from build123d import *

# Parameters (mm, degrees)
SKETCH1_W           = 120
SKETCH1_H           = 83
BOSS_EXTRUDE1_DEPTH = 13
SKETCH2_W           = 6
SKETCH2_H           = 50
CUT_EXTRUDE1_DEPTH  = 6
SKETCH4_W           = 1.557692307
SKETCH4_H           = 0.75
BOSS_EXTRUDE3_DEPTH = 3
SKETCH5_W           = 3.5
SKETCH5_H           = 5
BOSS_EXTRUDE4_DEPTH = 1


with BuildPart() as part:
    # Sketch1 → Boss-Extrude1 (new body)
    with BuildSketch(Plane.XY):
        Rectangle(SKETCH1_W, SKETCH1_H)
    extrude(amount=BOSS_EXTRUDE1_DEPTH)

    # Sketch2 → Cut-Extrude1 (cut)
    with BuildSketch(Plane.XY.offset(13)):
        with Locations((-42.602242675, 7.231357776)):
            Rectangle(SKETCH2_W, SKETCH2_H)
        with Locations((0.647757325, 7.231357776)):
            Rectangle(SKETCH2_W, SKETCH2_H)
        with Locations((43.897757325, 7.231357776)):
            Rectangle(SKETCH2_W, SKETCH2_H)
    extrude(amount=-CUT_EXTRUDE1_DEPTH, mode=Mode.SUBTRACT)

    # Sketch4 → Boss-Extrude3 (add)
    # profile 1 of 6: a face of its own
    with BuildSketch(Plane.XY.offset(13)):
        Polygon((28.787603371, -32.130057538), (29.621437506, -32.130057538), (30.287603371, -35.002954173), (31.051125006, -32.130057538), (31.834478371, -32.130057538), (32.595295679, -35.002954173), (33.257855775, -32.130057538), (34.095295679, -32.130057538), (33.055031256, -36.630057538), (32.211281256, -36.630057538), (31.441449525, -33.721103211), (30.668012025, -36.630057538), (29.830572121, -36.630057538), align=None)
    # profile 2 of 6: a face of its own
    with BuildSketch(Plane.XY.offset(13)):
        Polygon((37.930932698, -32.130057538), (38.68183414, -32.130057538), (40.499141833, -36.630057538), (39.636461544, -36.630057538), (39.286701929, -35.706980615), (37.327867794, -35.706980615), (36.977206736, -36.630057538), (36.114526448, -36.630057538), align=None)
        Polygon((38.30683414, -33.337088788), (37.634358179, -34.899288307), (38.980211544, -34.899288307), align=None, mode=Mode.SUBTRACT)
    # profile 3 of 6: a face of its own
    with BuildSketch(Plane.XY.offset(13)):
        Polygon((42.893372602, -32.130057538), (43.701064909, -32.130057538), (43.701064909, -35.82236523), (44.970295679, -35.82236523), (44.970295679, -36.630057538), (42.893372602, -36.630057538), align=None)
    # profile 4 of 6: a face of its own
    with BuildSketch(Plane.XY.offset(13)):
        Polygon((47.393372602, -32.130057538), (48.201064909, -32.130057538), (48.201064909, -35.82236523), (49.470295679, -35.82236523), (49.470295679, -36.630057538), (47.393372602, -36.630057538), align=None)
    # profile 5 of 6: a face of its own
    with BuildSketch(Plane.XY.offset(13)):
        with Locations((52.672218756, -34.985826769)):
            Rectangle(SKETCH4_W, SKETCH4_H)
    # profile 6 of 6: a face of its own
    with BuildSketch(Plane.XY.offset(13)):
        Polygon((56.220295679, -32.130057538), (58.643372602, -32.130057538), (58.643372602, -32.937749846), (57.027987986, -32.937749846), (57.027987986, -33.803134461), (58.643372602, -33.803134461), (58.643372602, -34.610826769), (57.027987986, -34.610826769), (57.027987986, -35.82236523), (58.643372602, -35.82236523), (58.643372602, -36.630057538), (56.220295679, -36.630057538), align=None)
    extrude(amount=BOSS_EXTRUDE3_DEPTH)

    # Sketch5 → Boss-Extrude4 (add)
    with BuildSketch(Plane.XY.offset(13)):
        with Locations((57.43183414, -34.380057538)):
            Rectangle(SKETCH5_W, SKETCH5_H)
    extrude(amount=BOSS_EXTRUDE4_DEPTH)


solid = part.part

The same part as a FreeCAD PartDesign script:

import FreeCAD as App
import Part
import Sketcher

V = App.Vector
Q = App.Units.Quantity

doc = App.newDocument("Part")
body = doc.addObject("PartDesign::Body", "Body")

sketch1 = body.newObject("Sketcher::SketchObject", "Sketch")
sketch1.AttachmentSupport = (doc.getObject("XY_Plane"), [""])
sketch1.MapMode = "FlatFace"
sketch1.addGeometry(Part.LineSegment(V(-60, 42, 0), V(-60, -42, 0)), False)
sketch1.addGeometry(Part.LineSegment(V(-60, -42, 0), V(60, -42, 0)), False)
sketch1.addGeometry(Part.LineSegment(V(60, -42, 0), V(60, 42, 0)), False)
sketch1.addGeometry(Part.LineSegment(V(60, 42, 0), V(-60, 42, 0)), False)
sketch1.addConstraint(Sketcher.Constraint("Coincident", 0, 2, 1, 1))
sketch1.addConstraint(Sketcher.Constraint("Coincident", 1, 2, 2, 1))
sketch1.addConstraint(Sketcher.Constraint("Coincident", 2, 2, 3, 1))
sketch1.addConstraint(Sketcher.Constraint("Coincident", 3, 2, 0, 1))
sketch1.addConstraint(Sketcher.Constraint("Vertical", 0))
sketch1.addConstraint(Sketcher.Constraint("Horizontal", 1))
sketch1.addConstraint(Sketcher.Constraint("Vertical", 2))
sketch1.addConstraint(Sketcher.Constraint("Horizontal", 3))
sketch1.addConstraint(Sketcher.Constraint("Symmetric", 0, 2, 2, 2, -1, 1))
sketch1.addConstraint(Sketcher.Constraint("DistanceX", 1, 1, 1, 2, Q("120 mm")))
sketch1.addConstraint(Sketcher.Constraint("DistanceY", 0, 2, 0, 1, Q("83 mm")))
pad1 = body.newObject("PartDesign::Pad", "Pad")
pad1.Profile = sketch1
pad1.Length = 13

sketch2 = body.newObject("Sketcher::SketchObject", "Sketch001")
sketch2.AttachmentSupport = (doc.getObject("XY_Plane"), [""])
sketch2.MapMode = "FlatFace"
sketch2.AttachmentOffset = App.Placement(V(0, 0, 13), App.Rotation())
sketch2.addGeometry(Part.LineSegment(V(-46, 32, 0), V(-46, -18, 0)), False)
sketch2.addGeometry(Part.LineSegment(V(-46, -18, 0), V(-40, -18, 0)), False)
sketch2.addGeometry(Part.LineSegment(V(-40, -18, 0), V(-40, 32, 0)), False)
sketch2.addGeometry(Part.LineSegment(V(-40, 32, 0), V(-46, 32, 0)), False)
sketch2.addGeometry(Part.LineSegment(V(-2, 32, 0), V(-2, -18, 0)), False)
sketch2.addGeometry(Part.LineSegment(V(-2, -18, 0), V(4, -18, 0)), False)
sketch2.addGeometry(Part.LineSegment(V(4, -18, 0), V(4, 32, 0)), False)
sketch2.addGeometry(Part.LineSegment(V(4, 32, 0), V(-2, 32, 0)), False)
sketch2.addGeometry(Part.LineSegment(V(41, 32, 0), V(41, -18, 0)), False)
sketch2.addGeometry(Part.LineSegment(V(41, -18, 0), V(47, -18, 0)), False)
sketch2.addGeometry(Part.LineSegment(V(47, -18, 0), V(47, 32, 0)), False)
sketch2.addGeometry(Part.LineSegment(V(47, 32, 0), V(41, 32, 0)), False)
sketch2.addConstraint(Sketcher.Constraint("Coincident", 0, 2, 1, 1))
sketch2.addConstraint(Sketcher.Constraint("Coincident", 1, 2, 2, 1))
sketch2.addConstraint(Sketcher.Constraint("Coincident", 2, 2, 3, 1))
sketch2.addConstraint(Sketcher.Constraint("Coincident", 3, 2, 0, 1))
sketch2.addConstraint(Sketcher.Constraint("Coincident", 4, 2, 5, 1))
sketch2.addConstraint(Sketcher.Constraint("Coincident", 5, 2, 6, 1))
sketch2.addConstraint(Sketcher.Constraint("Coincident", 6, 2, 7, 1))
sketch2.addConstraint(Sketcher.Constraint("Coincident", 7, 2, 4, 1))
sketch2.addConstraint(Sketcher.Constraint("Coincident", 8, 2, 9, 1))
sketch2.addConstraint(Sketcher.Constraint("Coincident", 9, 2, 10, 1))
sketch2.addConstraint(Sketcher.Constraint("Coincident", 10, 2, 11, 1))
sketch2.addConstraint(Sketcher.Constraint("Coincident", 11, 2, 8, 1))
sketch2.addConstraint(Sketcher.Constraint("Vertical", 0))
sketch2.addConstraint(Sketcher.Constraint("Horizontal", 1))
sketch2.addConstraint(Sketcher.Constraint("Vertical", 2))
sketch2.addConstraint(Sketcher.Constraint("Horizontal", 3))
sketch2.addConstraint(Sketcher.Constraint("Vertical", 4))
sketch2.addConstraint(Sketcher.Constraint("Horizontal", 5))
sketch2.addConstraint(Sketcher.Constraint("Vertical", 6))
sketch2.addConstraint(Sketcher.Constraint("Horizontal", 7))
sketch2.addConstraint(Sketcher.Constraint("Vertical", 8))
sketch2.addConstraint(Sketcher.Constraint("Horizontal", 9))
sketch2.addConstraint(Sketcher.Constraint("Vertical", 10))
sketch2.addConstraint(Sketcher.Constraint("Horizontal", 11))
sketch2.addConstraint(Sketcher.Constraint("Horizontal", 1, 2, 4, 2))
sketch2.addConstraint(Sketcher.Constraint("Horizontal", 3, 2, 6, 2))
sketch2.addConstraint(Sketcher.Constraint("Horizontal", 5, 2, 8, 2))
sketch2.addConstraint(Sketcher.Constraint("Horizontal", 7, 2, 10, 2))
sketch2.addConstraint(Sketcher.Constraint("Equal", 3, 5))
sketch2.addConstraint(Sketcher.Constraint("Equal", 7, 9))
sketch2.addConstraint(Sketcher.Constraint("DistanceX", 1, 1, 1, 2, Q("6 mm")))
sketch2.addConstraint(Sketcher.Constraint("DistanceY", 0, 2, 0, 1, Q("50 mm")))
sketch2.addConstraint(Sketcher.Constraint("DistanceX", 1, 2, 8, 2, Q("80.5 mm")))
sketch2.addConstraint(Sketcher.Constraint("DistanceX", 1, 2, 4, 2, Q("37.25 mm")))
sketch2.addConstraint(Sketcher.Constraint("DistanceX", 0, 2, -1, 1, Q("45.602243 mm")))
sketch2.addConstraint(Sketcher.Constraint("DistanceY", 0, 2, -1, 1, Q("17.768642 mm")))
pocket1 = body.newObject("PartDesign::Pocket", "Pocket")
pocket1.Profile = sketch2
pocket1.Length = 6

sketch3 = body.newObject("Sketcher::SketchObject", "Sketch002")
sketch3.AttachmentSupport = (doc.getObject("XY_Plane"), [""])
sketch3.MapMode = "FlatFace"
sketch3.AttachmentOffset = App.Placement(V(0, 0, 13), App.Rotation())
sketch3.addGeometry(Part.LineSegment(V(29.6, -32.1, 0), V(28.8, -32.1, 0)), False)
sketch3.addGeometry(Part.LineSegment(V(28.8, -32.1, 0), V(29.8, -36.6, 0)), False)
sketch3.addGeometry(Part.LineSegment(V(29.8, -36.6, 0), V(30.7, -36.6, 0)), False)
sketch3.addGeometry(Part.LineSegment(V(30.7, -36.6, 0), V(31.4, -33.7, 0)), False)
sketch3.addGeometry(Part.LineSegment(V(31.4, -33.7, 0), V(32.2, -36.6, 0)), False)
sketch3.addGeometry(Part.LineSegment(V(32.2, -36.6, 0), V(33.1, -36.6, 0)), False)
sketch3.addGeometry(Part.LineSegment(V(33.1, -36.6, 0), V(34.1, -32.1, 0)), False)
sketch3.addGeometry(Part.LineSegment(V(34.1, -32.1, 0), V(33.3, -32.1, 0)), False)
sketch3.addGeometry(Part.LineSegment(V(33.3, -32.1, 0), V(32.6, -35, 0)), False)
sketch3.addGeometry(Part.LineSegment(V(32.6, -35, 0), V(31.8, -32.1, 0)), False)
sketch3.addGeometry(Part.LineSegment(V(31.8, -32.1, 0), V(31.1, -32.1, 0)), False)
sketch3.addGeometry(Part.LineSegment(V(31.1, -32.1, 0), V(30.3, -35, 0)), False)
sketch3.addGeometry(Part.LineSegment(V(30.3, -35, 0), V(29.6, -32.1, 0)), False)
sketch3.addGeometry(Part.LineSegment(V(38.7, -32.1, 0), V(37.9, -32.1, 0)), False)
sketch3.addGeometry(Part.LineSegment(V(37.9, -32.1, 0), V(36.1, -36.6, 0)), False)
sketch3.addGeometry(Part.LineSegment(V(36.1, -36.6, 0), V(37, -36.6, 0)), False)
sketch3.addGeometry(Part.LineSegment(V(37, -36.6, 0), V(37.3, -35.7, 0)), False)
sketch3.addGeometry(Part.LineSegment(V(37.3, -35.7, 0), V(39.3, -35.7, 0)), False)
sketch3.addGeometry(Part.LineSegment(V(39.3, -35.7, 0), V(39.6, -36.6, 0)), False)
sketch3.addGeometry(Part.LineSegment(V(39.6, -36.6, 0), V(40.5, -36.6, 0)), False)
sketch3.addGeometry(Part.LineSegment(V(40.5, -36.6, 0), V(38.7, -32.1, 0)), False)
sketch3.addGeometry(Part.LineSegment(V(38.3, -33.3, 0), V(39, -34.9, 0)), False)
sketch3.addGeometry(Part.LineSegment(V(39, -34.9, 0), V(37.6, -34.9, 0)), False)
sketch3.addGeometry(Part.LineSegment(V(37.6, -34.9, 0), V(38.3, -33.3, 0)), False)
sketch3.addGeometry(Part.LineSegment(V(43.7, -32.1, 0), V(42.9, -32.1, 0)), False)
sketch3.addGeometry(Part.LineSegment(V(42.9, -32.1, 0), V(42.9, -36.6, 0)), False)
sketch3.addGeometry(Part.LineSegment(V(42.9, -36.6, 0), V(45, -36.6, 0)), False)
sketch3.addGeometry(Part.LineSegment(V(45, -36.6, 0), V(45, -35.8, 0)), False)
sketch3.addGeometry(Part.LineSegment(V(45, -35.8, 0), V(43.7, -35.8, 0)), False)
sketch3.addGeometry(Part.LineSegment(V(43.7, -35.8, 0), V(43.7, -32.1, 0)), False)
sketch3.addGeometry(Part.LineSegment(V(48.2, -32.1, 0), V(47.4, -32.1, 0)), False)
sketch3.addGeometry(Part.LineSegment(V(47.4, -32.1, 0), V(47.4, -36.6, 0)), False)
sketch3.addGeometry(Part.LineSegment(V(47.4, -36.6, 0), V(49.5, -36.6, 0)), False)
sketch3.addGeometry(Part.LineSegment(V(49.5, -36.6, 0), V(49.5, -35.8, 0)), False)
sketch3.addGeometry(Part.LineSegment(V(49.5, -35.8, 0), V(48.2, -35.8, 0)), False)
sketch3.addGeometry(Part.LineSegment(V(48.2, -35.8, 0), V(48.2, -32.1, 0)), False)
sketch3.addGeometry(Part.LineSegment(V(51.9, -34.6, 0), V(51.9, -35.4, 0)), False)
sketch3.addGeometry(Part.LineSegment(V(51.9, -35.4, 0), V(53.5, -35.4, 0)), False)
sketch3.addGeometry(Part.LineSegment(V(53.5, -35.4, 0), V(53.5, -34.6, 0)), False)
sketch3.addGeometry(Part.LineSegment(V(53.5, -34.6, 0), V(51.9, -34.6, 0)), False)
sketch3.addGeometry(Part.LineSegment(V(58.6, -32.1, 0), V(56.2, -32.1, 0)), False)
sketch3.addGeometry(Part.LineSegment(V(56.2, -32.1, 0), V(56.2, -36.6, 0)), False)
sketch3.addGeometry(Part.LineSegment(V(56.2, -36.6, 0), V(58.6, -36.6, 0)), False)
sketch3.addGeometry(Part.LineSegment(V(58.6, -36.6, 0), V(58.6, -35.8, 0)), False)
sketch3.addGeometry(Part.LineSegment(V(58.6, -35.8, 0), V(57, -35.8, 0)), False)
sketch3.addGeometry(Part.LineSegment(V(57, -35.8, 0), V(57, -34.6, 0)), False)
sketch3.addGeometry(Part.LineSegment(V(57, -34.6, 0), V(58.6, -34.6, 0)), False)
sketch3.addGeometry(Part.LineSegment(V(58.6, -34.6, 0), V(58.6, -33.8, 0)), False)
sketch3.addGeometry(Part.LineSegment(V(58.6, -33.8, 0), V(57, -33.8, 0)), False)
sketch3.addGeometry(Part.LineSegment(V(57, -33.8, 0), V(57, -32.9, 0)), False)
sketch3.addGeometry(Part.LineSegment(V(57, -32.9, 0), V(58.6, -32.9, 0)), False)
sketch3.addGeometry(Part.LineSegment(V(58.6, -32.9, 0), V(58.6, -32.1, 0)), False)
sketch3.addConstraint(Sketcher.Constraint("Coincident", 0, 2, 1, 1))
sketch3.addConstraint(Sketcher.Constraint("Coincident", 1, 2, 2, 1))
sketch3.addConstraint(Sketcher.Constraint("Coincident", 2, 2, 3, 1))
sketch3.addConstraint(Sketcher.Constraint("Coincident", 3, 2, 4, 1))
sketch3.addConstraint(Sketcher.Constraint("Coincident", 4, 2, 5, 1))
sketch3.addConstraint(Sketcher.Constraint("Coincident", 5, 2, 6, 1))
sketch3.addConstraint(Sketcher.Constraint("Coincident", 6, 2, 7, 1))
sketch3.addConstraint(Sketcher.Constraint("Coincident", 7, 2, 8, 1))
sketch3.addConstraint(Sketcher.Constraint("Coincident", 8, 2, 9, 1))
sketch3.addConstraint(Sketcher.Constraint("Coincident", 9, 2, 10, 1))
sketch3.addConstraint(Sketcher.Constraint("Coincident", 10, 2, 11, 1))
sketch3.addConstraint(Sketcher.Constraint("Coincident", 11, 2, 12, 1))
sketch3.addConstraint(Sketcher.Constraint("Coincident", 12, 2, 0, 1))
sketch3.addConstraint(Sketcher.Constraint("Coincident", 13, 2, 14, 1))
sketch3.addConstraint(Sketcher.Constraint("Coincident", 14, 2, 15, 1))
sketch3.addConstraint(Sketcher.Constraint("Coincident", 15, 2, 16, 1))
sketch3.addConstraint(Sketcher.Constraint("Coincident", 16, 2, 17, 1))
sketch3.addConstraint(Sketcher.Constraint("Coincident", 17, 2, 18, 1))
sketch3.addConstraint(Sketcher.Constraint("Coincident", 18, 2, 19, 1))
sketch3.addConstraint(Sketcher.Constraint("Coincident", 19, 2, 20, 1))
sketch3.addConstraint(Sketcher.Constraint("Coincident", 20, 2, 13, 1))
sketch3.addConstraint(Sketcher.Constraint("Coincident", 21, 2, 22, 1))
sketch3.addConstraint(Sketcher.Constraint("Coincident", 22, 2, 23, 1))
sketch3.addConstraint(Sketcher.Constraint("Coincident", 23, 2, 21, 1))
sketch3.addConstraint(Sketcher.Constraint("Coincident", 24, 2, 25, 1))
sketch3.addConstraint(Sketcher.Constraint("Coincident", 25, 2, 26, 1))
sketch3.addConstraint(Sketcher.Constraint("Coincident", 26, 2, 27, 1))
sketch3.addConstraint(Sketcher.Constraint("Coincident", 27, 2, 28, 1))
sketch3.addConstraint(Sketcher.Constraint("Coincident", 28, 2, 29, 1))
sketch3.addConstraint(Sketcher.Constraint("Coincident", 29, 2, 24, 1))
sketch3.addConstraint(Sketcher.Constraint("Coincident", 30, 2, 31, 1))
sketch3.addConstraint(Sketcher.Constraint("Coincident", 31, 2, 32, 1))
sketch3.addConstraint(Sketcher.Constraint("Coincident", 32, 2, 33, 1))
sketch3.addConstraint(Sketcher.Constraint("Coincident", 33, 2, 34, 1))
sketch3.addConstraint(Sketcher.Constraint("Coincident", 34, 2, 35, 1))
sketch3.addConstraint(Sketcher.Constraint("Coincident", 35, 2, 30, 1))
sketch3.addConstraint(Sketcher.Constraint("Coincident", 36, 2, 37, 1))
sketch3.addConstraint(Sketcher.Constraint("Coincident", 37, 2, 38, 1))
sketch3.addConstraint(Sketcher.Constraint("Coincident", 38, 2, 39, 1))
sketch3.addConstraint(Sketcher.Constraint("Coincident", 39, 2, 36, 1))
sketch3.addConstraint(Sketcher.Constraint("Coincident", 40, 2, 41, 1))
sketch3.addConstraint(Sketcher.Constraint("Coincident", 41, 2, 42, 1))
sketch3.addConstraint(Sketcher.Constraint("Coincident", 42, 2, 43, 1))
sketch3.addConstraint(Sketcher.Constraint("Coincident", 43, 2, 44, 1))
sketch3.addConstraint(Sketcher.Constraint("Coincident", 44, 2, 45, 1))
sketch3.addConstraint(Sketcher.Constraint("Coincident", 45, 2, 46, 1))
sketch3.addConstraint(Sketcher.Constraint("Coincident", 46, 2, 47, 1))
sketch3.addConstraint(Sketcher.Constraint("Coincident", 47, 2, 48, 1))
sketch3.addConstraint(Sketcher.Constraint("Coincident", 48, 2, 49, 1))
sketch3.addConstraint(Sketcher.Constraint("Coincident", 49, 2, 50, 1))
sketch3.addConstraint(Sketcher.Constraint("Coincident", 50, 2, 51, 1))
sketch3.addConstraint(Sketcher.Constraint("Coincident", 51, 2, 40, 1))
sketch3.addConstraint(Sketcher.Constraint("Horizontal", 0))
sketch3.addConstraint(Sketcher.Constraint("Horizontal", 2))
sketch3.addConstraint(Sketcher.Constraint("Horizontal", 5))
sketch3.addConstraint(Sketcher.Constraint("Horizontal", 7))
sketch3.addConstraint(Sketcher.Constraint("Horizontal", 10))
sketch3.addConstraint(Sketcher.Constraint("Horizontal", 13))
sketch3.addConstraint(Sketcher.Constraint("Horizontal", 15))
sketch3.addConstraint(Sketcher.Constraint("Horizontal", 17))
sketch3.addConstraint(Sketcher.Constraint("Horizontal", 19))
sketch3.addConstraint(Sketcher.Constraint("Horizontal", 22))
sketch3.addConstraint(Sketcher.Constraint("Horizontal", 24))
sketch3.addConstraint(Sketcher.Constraint("Vertical", 25))
sketch3.addConstraint(Sketcher.Constraint("Horizontal", 26))
sketch3.addConstraint(Sketcher.Constraint("Vertical", 27))
sketch3.addConstraint(Sketcher.Constraint("Horizontal", 28))
sketch3.addConstraint(Sketcher.Constraint("Vertical", 29))
sketch3.addConstraint(Sketcher.Constraint("Horizontal", 30))
sketch3.addConstraint(Sketcher.Constraint("Vertical", 31))
sketch3.addConstraint(Sketcher.Constraint("Horizontal", 32))
sketch3.addConstraint(Sketcher.Constraint("Vertical", 33))
sketch3.addConstraint(Sketcher.Constraint("Horizontal", 34))
sketch3.addConstraint(Sketcher.Constraint("Vertical", 35))
sketch3.addConstraint(Sketcher.Constraint("Vertical", 36))
sketch3.addConstraint(Sketcher.Constraint("Horizontal", 37))
sketch3.addConstraint(Sketcher.Constraint("Vertical", 38))
sketch3.addConstraint(Sketcher.Constraint("Horizontal", 39))
sketch3.addConstraint(Sketcher.Constraint("Horizontal", 40))
sketch3.addConstraint(Sketcher.Constraint("Vertical", 41))
sketch3.addConstraint(Sketcher.Constraint("Horizontal", 42))
sketch3.addConstraint(Sketcher.Constraint("Vertical", 43))
sketch3.addConstraint(Sketcher.Constraint("Horizontal", 44))
sketch3.addConstraint(Sketcher.Constraint("Vertical", 45))
sketch3.addConstraint(Sketcher.Constraint("Horizontal", 46))
sketch3.addConstraint(Sketcher.Constraint("Vertical", 47))
sketch3.addConstraint(Sketcher.Constraint("Horizontal", 48))
sketch3.addConstraint(Sketcher.Constraint("Vertical", 49))
sketch3.addConstraint(Sketcher.Constraint("Horizontal", 50))
sketch3.addConstraint(Sketcher.Constraint("Vertical", 51))
sketch3.addConstraint(Sketcher.Constraint("Horizontal", 2, 2, 4, 2))
sketch3.addConstraint(Sketcher.Constraint("Horizontal", 0, 2, 6, 2))
sketch3.addConstraint(Sketcher.Constraint("Horizontal", 7, 2, 9, 2))
sketch3.addConstraint(Sketcher.Constraint("Horizontal", 8, 2, 11, 2))
sketch3.addConstraint(Sketcher.Constraint("Horizontal", 12, 2, 13, 2))
sketch3.addConstraint(Sketcher.Constraint("Horizontal", 5, 2, 14, 2))
sketch3.addConstraint(Sketcher.Constraint("Horizontal", 15, 2, 18, 2))
sketch3.addConstraint(Sketcher.Constraint("Horizontal", 20, 2, 24, 2))
sketch3.addConstraint(Sketcher.Constraint("Horizontal", 19, 2, 25, 2))
sketch3.addConstraint(Sketcher.Constraint("Horizontal", 29, 2, 30, 2))
sketch3.addConstraint(Sketcher.Constraint("Horizontal", 26, 2, 31, 2))
sketch3.addConstraint(Sketcher.Constraint("Horizontal", 28, 2, 33, 2))
sketch3.addConstraint(Sketcher.Constraint("Horizontal", 35, 2, 40, 2))
sketch3.addConstraint(Sketcher.Constraint("Horizontal", 32, 2, 41, 2))
sketch3.addConstraint(Sketcher.Constraint("Horizontal", 34, 2, 43, 2))
sketch3.addConstraint(Sketcher.Constraint("Horizontal", 39, 2, 45, 2))
sketch3.addConstraint(Sketcher.Constraint("Vertical", 43, 2, 46, 2))
sketch3.addConstraint(Sketcher.Constraint("Vertical", 45, 2, 48, 2))
sketch3.addConstraint(Sketcher.Constraint("Vertical", 47, 2, 50, 2))
sketch3.addConstraint(Sketcher.Constraint("Equal", 2, 7))
sketch3.addConstraint(Sketcher.Constraint("Equal", 15, 19))
sketch3.addConstraint(Sketcher.Constraint("Equal", 24, 30))
sketch3.addConstraint(Sketcher.Constraint("Equal", 26, 32))
sketch3.addConstraint(Sketcher.Constraint("Equal", 30, 27))
sketch3.addConstraint(Sketcher.Constraint("Equal", 43, 47))
sketch3.addConstraint(Sketcher.Constraint("Equal", 47, 51))
sketch3.addConstraint(Sketcher.Constraint("DistanceY", 25, 2, 25, 1, Q("4.5 mm")))
sketch3.addConstraint(Sketcher.Constraint("DistanceY", 36, 2, 36, 1, Q("0.75 mm")))
sketch3.addConstraint(Sketcher.Constraint("DistanceX", 24, 2, 30, 2, Q("4.5 mm")))
sketch3.addConstraint(Sketcher.Constraint("DistanceX", 31, 2, 36, 2, Q("4.5 mm")))
sketch3.addConstraint(Sketcher.Constraint("DistanceX", 34, 2, 37, 2, Q("5.25 mm")))
sketch3.addConstraint(Sketcher.Constraint("DistanceX", 33, 2, 40, 2, Q("6.75 mm")))
sketch3.addConstraint(Sketcher.Constraint("DistanceX", 36, 2, 42, 2, Q("6.75 mm")))
sketch3.addConstraint(Sketcher.Constraint("DistanceX", 13, 2, 13, 1, Q("0.750901 mm")))
sketch3.addConstraint(Sketcher.Constraint("DistanceX", 23, 2, 20, 2, Q("0.375 mm")))
sketch3.addConstraint(Sketcher.Constraint("DistanceX", 2, 1, 2, 2, Q("0.83744 mm")))
sketch3.addConstraint(Sketcher.Constraint("DistanceX", 5, 1, 5, 2, Q("0.84375 mm")))
sketch3.addConstraint(Sketcher.Constraint("DistanceX", 15, 1, 15, 2, Q("0.86268 mm")))
sketch3.addConstraint(Sketcher.Constraint("DistanceX", 28, 2, 28, 1, Q("1.269231 mm")))
sketch3.addConstraint(Sketcher.Constraint("DistanceY", 45, 1, 45, 2, Q("1.211538 mm")))
sketch3.addConstraint(Sketcher.Constraint("DistanceX", -1, 1, 17, 2, Q("39.286702 mm")))
sketch3.addConstraint(Sketcher.Constraint("DistanceX", 5, 2, 13, 2, Q("4.875901 mm")))
sketch3.addConstraint(Sketcher.Constraint("DistanceY", 22, 2, 23, 2, Q("1.5622 mm")))
sketch3.addConstraint(Sketcher.Constraint("Distance", 3, Q("3.01002 mm")))
sketch3.addConstraint(Sketcher.Constraint("Distance", 8, Q("2.948308 mm")))
sketch3.addConstraint(Sketcher.Constraint("Distance", 9, Q("2.971932 mm")))
sketch3.addConstraint(Sketcher.Constraint("Distance", 12, Q("2.949121 mm")))
sketch3.addConstraint(Sketcher.Constraint("Distance", 16, Q("0.987438 mm")))
sketch3.addConstraint(Sketcher.Constraint("Distance", 18, Q("0.987118 mm")))
sketch3.addConstraint(Sketcher.Constraint("Distance", 23, Q("1.700791 mm")))
sketch3.addConstraint(Sketcher.Constraint("DistanceX", 0, 2, 0, 1, Q("0.833834 mm")))
sketch3.addConstraint(Sketcher.Constraint("DistanceX", 10, 2, 10, 1, Q("0.783353 mm")))
sketch3.addConstraint(Sketcher.Constraint("DistanceX", 17, 1, 17, 2, Q("1.958834 mm")))
sketch3.addConstraint(Sketcher.Constraint("DistanceX", 22, 2, 22, 1, Q("1.345853 mm")))
sketch3.addConstraint(Sketcher.Constraint("DistanceX", 24, 2, 24, 1, Q("0.807692 mm")))
sketch3.addConstraint(Sketcher.Constraint("DistanceX", 44, 2, 44, 1, Q("1.615385 mm")))
sketch3.addConstraint(Sketcher.Constraint("DistanceX", -1, 1, 3, 2, Q("31.44145 mm")))
sketch3.addConstraint(Sketcher.Constraint("DistanceX", -1, 1, 4, 2, Q("32.211281 mm")))
sketch3.addConstraint(Sketcher.Constraint("DistanceX", -1, 1, 9, 2, Q("31.834478 mm")))
sketch3.addConstraint(Sketcher.Constraint("DistanceY", 16, 2, -1, 1, Q("35.706981 mm")))
sketch3.addConstraint(Sketcher.Constraint("DistanceX", -1, 1, 18, 2, Q("39.636462 mm")))
sketch3.addConstraint(Sketcher.Constraint("DistanceY", 21, 2, -1, 1, Q("34.899288 mm")))
sketch3.addConstraint(Sketcher.Constraint("DistanceX", 0, 2, 1, 2, Q("1.042969 mm")))
sketch3.addConstraint(Sketcher.Constraint("DistanceX", 2, 2, 4, 2, Q("1.543269 mm")))
sketch3.addConstraint(Sketcher.Constraint("DistanceY", 8, 2, 3, 2, Q("1.281851 mm")))
sketch3.addConstraint(Sketcher.Constraint("DistanceX", 20, 2, 24, 2, Q("4.211538 mm")))
pad2 = body.newObject("PartDesign::Pad", "Pad001")
pad2.Profile = sketch3
pad2.Length = 3

sketch4 = body.newObject("Sketcher::SketchObject", "Sketch003")
sketch4.AttachmentSupport = (doc.getObject("XY_Plane"), [""])
sketch4.MapMode = "FlatFace"
sketch4.AttachmentOffset = App.Placement(V(0, 0, 13), App.Rotation())
sketch4.addGeometry(Part.LineSegment(V(55.7, -31.9, 0), V(55.7, -36.9, 0)), False)
sketch4.addGeometry(Part.LineSegment(V(55.7, -36.9, 0), V(59.2, -36.9, 0)), False)
sketch4.addGeometry(Part.LineSegment(V(59.2, -36.9, 0), V(59.2, -31.9, 0)), False)
sketch4.addGeometry(Part.LineSegment(V(59.2, -31.9, 0), V(55.7, -31.9, 0)), False)
sketch4.addConstraint(Sketcher.Constraint("Coincident", 0, 2, 1, 1))
sketch4.addConstraint(Sketcher.Constraint("Coincident", 1, 2, 2, 1))
sketch4.addConstraint(Sketcher.Constraint("Coincident", 2, 2, 3, 1))
sketch4.addConstraint(Sketcher.Constraint("Coincident", 3, 2, 0, 1))
sketch4.addConstraint(Sketcher.Constraint("Vertical", 0))
sketch4.addConstraint(Sketcher.Constraint("Horizontal", 1))
sketch4.addConstraint(Sketcher.Constraint("Vertical", 2))
sketch4.addConstraint(Sketcher.Constraint("Horizontal", 3))
sketch4.addConstraint(Sketcher.Constraint("DistanceY", 0, 2, 0, 1, Q("5 mm")))
sketch4.addConstraint(Sketcher.Constraint("DistanceX", 1, 1, 1, 2, Q("3.5 mm")))
sketch4.addConstraint(Sketcher.Constraint("DistanceX", -1, 1, 0, 2, Q("55.681834 mm")))
sketch4.addConstraint(Sketcher.Constraint("DistanceY", 0, 2, -1, 1, Q("36.880058 mm")))
pad3 = body.newObject("PartDesign::Pad", "Pad002")
pad3.Profile = sketch4
pad3.Length = 1

doc.recompute()
